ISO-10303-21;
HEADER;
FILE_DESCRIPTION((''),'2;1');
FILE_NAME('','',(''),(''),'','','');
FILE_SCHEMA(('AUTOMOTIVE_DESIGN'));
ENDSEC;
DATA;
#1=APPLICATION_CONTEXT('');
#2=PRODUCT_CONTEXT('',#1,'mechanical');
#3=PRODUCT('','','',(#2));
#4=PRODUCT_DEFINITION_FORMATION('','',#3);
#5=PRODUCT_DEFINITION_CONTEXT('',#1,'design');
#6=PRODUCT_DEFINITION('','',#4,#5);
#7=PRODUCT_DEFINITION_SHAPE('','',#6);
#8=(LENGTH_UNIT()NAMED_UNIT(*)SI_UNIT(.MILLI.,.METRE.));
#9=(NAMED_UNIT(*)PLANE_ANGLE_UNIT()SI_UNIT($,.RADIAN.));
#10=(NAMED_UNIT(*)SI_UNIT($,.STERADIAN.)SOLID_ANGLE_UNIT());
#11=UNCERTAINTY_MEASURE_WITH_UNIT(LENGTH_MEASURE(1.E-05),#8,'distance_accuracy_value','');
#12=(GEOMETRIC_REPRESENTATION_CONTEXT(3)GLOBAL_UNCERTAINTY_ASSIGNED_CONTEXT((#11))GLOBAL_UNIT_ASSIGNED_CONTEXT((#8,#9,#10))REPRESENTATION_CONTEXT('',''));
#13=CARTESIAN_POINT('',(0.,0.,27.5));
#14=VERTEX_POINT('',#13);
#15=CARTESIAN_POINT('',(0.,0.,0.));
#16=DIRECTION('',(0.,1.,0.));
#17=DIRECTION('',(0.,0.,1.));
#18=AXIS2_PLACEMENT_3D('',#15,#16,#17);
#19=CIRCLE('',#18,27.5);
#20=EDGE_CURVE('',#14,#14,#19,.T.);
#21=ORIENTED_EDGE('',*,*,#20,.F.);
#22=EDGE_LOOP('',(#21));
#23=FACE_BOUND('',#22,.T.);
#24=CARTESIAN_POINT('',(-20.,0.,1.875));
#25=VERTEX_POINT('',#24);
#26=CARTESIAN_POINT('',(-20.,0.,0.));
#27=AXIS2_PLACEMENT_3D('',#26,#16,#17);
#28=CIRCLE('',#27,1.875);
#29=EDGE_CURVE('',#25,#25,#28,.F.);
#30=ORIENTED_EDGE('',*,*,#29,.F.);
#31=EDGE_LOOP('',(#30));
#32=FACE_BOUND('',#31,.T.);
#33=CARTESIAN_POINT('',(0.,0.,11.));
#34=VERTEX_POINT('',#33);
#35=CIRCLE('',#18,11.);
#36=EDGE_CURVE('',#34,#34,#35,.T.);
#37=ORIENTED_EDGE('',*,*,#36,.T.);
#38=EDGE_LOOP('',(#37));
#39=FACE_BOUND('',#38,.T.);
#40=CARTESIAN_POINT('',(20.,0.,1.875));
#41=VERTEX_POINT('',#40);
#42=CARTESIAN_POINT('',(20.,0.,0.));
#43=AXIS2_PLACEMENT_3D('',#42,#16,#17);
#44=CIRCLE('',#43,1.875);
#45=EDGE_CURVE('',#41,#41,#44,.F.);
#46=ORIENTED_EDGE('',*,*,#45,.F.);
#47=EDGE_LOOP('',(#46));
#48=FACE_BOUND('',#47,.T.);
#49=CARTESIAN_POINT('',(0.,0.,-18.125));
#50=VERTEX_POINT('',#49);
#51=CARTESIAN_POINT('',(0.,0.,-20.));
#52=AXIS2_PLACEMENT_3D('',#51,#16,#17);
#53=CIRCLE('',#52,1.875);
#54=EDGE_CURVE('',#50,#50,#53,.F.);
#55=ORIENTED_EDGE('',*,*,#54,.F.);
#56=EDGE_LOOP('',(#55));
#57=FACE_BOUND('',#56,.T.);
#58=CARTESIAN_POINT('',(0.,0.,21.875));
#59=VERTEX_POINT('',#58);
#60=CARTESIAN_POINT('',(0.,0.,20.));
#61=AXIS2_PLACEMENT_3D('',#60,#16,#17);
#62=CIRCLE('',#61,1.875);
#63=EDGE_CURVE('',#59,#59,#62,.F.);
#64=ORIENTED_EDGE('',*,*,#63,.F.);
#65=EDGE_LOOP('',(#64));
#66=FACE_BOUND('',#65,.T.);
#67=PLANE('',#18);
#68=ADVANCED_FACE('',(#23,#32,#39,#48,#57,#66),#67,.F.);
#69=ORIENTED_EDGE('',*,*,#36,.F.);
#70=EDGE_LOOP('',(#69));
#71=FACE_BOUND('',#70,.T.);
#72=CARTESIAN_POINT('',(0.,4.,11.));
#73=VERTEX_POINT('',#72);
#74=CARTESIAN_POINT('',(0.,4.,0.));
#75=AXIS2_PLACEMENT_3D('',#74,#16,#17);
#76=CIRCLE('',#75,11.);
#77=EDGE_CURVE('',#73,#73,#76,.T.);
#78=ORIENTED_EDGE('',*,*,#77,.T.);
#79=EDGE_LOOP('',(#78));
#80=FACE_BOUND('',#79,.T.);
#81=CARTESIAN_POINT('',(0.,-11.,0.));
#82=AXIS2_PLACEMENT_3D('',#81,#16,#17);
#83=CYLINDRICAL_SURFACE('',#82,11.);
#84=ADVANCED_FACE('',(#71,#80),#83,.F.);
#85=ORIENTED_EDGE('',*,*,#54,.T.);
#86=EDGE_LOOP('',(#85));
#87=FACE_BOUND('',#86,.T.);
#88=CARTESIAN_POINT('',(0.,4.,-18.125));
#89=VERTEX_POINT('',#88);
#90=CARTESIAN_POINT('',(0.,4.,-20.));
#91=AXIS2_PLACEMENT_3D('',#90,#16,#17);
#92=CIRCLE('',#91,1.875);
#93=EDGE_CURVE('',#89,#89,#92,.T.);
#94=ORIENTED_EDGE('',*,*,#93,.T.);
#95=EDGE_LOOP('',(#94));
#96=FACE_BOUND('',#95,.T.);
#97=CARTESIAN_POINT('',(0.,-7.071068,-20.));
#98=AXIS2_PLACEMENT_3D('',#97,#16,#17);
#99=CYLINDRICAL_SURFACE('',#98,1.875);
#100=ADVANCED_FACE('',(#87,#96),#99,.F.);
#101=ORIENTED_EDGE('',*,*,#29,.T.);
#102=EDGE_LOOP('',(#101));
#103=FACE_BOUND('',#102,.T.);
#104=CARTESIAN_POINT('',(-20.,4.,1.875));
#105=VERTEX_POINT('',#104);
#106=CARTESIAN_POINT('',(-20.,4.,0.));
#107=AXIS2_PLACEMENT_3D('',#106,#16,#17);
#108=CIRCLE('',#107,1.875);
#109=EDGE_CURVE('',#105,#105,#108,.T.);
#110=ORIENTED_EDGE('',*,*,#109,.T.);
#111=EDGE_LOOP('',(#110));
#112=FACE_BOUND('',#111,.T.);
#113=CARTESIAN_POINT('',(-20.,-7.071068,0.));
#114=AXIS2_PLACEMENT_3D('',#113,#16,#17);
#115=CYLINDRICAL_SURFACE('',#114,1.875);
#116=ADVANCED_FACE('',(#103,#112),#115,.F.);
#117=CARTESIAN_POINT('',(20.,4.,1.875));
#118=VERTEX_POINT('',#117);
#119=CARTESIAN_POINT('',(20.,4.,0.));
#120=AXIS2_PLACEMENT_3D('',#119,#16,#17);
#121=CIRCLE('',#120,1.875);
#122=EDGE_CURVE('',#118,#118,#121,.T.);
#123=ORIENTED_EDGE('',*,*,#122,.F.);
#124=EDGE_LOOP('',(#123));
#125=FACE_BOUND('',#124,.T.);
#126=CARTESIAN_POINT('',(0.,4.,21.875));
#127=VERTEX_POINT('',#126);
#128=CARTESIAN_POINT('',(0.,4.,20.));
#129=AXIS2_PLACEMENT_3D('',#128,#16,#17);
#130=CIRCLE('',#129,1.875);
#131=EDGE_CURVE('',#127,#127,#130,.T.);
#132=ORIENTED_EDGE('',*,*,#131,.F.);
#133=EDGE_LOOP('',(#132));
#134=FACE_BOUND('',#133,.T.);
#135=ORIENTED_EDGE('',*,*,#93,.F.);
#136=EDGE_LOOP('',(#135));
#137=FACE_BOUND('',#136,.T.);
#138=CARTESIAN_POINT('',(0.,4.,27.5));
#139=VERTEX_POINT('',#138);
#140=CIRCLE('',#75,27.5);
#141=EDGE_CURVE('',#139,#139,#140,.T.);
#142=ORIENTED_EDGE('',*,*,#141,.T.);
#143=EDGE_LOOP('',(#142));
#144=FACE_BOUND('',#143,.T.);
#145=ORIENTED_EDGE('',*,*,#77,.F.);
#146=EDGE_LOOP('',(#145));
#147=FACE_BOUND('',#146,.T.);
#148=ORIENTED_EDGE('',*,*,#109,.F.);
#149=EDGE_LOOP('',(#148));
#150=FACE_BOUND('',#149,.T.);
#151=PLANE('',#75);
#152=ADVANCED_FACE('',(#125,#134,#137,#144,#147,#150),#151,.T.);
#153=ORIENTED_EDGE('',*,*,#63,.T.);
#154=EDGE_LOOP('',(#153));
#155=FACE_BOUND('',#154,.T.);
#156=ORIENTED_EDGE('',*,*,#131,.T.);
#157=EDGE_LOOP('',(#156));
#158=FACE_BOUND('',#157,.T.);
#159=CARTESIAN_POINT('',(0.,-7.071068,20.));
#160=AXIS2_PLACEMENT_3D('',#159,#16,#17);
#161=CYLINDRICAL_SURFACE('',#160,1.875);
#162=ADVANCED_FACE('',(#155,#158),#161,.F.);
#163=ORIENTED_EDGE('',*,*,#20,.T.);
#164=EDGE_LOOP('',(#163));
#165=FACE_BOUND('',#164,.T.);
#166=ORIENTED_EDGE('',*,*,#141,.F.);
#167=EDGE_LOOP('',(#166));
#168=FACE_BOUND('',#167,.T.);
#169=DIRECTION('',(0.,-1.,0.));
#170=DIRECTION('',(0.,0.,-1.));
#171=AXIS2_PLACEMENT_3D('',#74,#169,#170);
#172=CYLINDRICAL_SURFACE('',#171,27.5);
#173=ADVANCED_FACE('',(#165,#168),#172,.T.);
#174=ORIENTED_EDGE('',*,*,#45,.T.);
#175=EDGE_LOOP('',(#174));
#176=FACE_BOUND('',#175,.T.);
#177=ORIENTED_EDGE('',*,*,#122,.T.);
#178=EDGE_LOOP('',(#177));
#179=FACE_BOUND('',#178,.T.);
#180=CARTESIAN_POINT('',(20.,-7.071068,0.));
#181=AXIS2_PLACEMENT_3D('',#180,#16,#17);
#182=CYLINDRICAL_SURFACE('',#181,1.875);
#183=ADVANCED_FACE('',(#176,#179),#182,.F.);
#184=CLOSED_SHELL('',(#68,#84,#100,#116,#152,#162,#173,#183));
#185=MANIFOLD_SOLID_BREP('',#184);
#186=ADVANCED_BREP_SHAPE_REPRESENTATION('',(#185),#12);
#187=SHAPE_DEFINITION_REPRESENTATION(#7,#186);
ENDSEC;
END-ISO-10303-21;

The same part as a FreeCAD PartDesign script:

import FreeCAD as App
import Part
import Sketcher
from FreeCAD import Vector
Q = App.Units.Quantity

doc = App.newDocument("Part")
body = doc.addObject("PartDesign::Body", "Body")

# Sketch on XZ plane
sketch1 = doc.addObject("Sketcher::SketchObject", "Sketch")
body.addObject(sketch1)
sketch1.AttachmentSupport = (doc.XZ_Plane, [""])
sketch1.MapMode = "FlatFace"
sketch1.addGeometry([
    Part.Circle(Vector(0, 0, 0), Vector(0, 0, 1), 27.5),  # 0
    Part.Circle(Vector(0, -20, 0), Vector(0, 0, 1), 2.5),  # 1
    Part.Circle(Vector(-20, 0, 0), Vector(0, 0, 1), 2.5),  # 2
    Part.Circle(Vector(20, 0, 0), Vector(0, 0, 1), 2.5),  # 3
    Part.Circle(Vector(0, 20, 0), Vector(0, 0, 1), 2.5),  # 4
], False)
sketch1.addConstraint([
    Sketcher.Constraint("Coincident", 0, 3, -1, 1),
    Sketcher.Constraint("Equal", 1, 2),
    Sketcher.Constraint("Equal", 2, 3),
    Sketcher.Constraint("Equal", 3, 4),
    Sketcher.Constraint("Symmetric", 2, 3, 3, 3, -1, 1),
    Sketcher.Constraint("Symmetric", 1, 3, 4, 3, -1, 1),
    Sketcher.Constraint("PointOnObject", 1, 3, -2),
    Sketcher.Constraint("PointOnObject", 2, 3, -1),
    Sketcher.Constraint("Diameter", 0, Q("55 mm")),
    Sketcher.Constraint("Diameter", 1, Q("5 mm")),
    Sketcher.Constraint("DistanceY", 1, 3, -1, 1, Q("20 mm")),
    Sketcher.Constraint("DistanceX", 2, 3, -1, 1, Q("20 mm")),
])
pad1 = doc.addObject("PartDesign::Pad", "Pad")
body.addObject(pad1)
pad1.Profile = sketch1
pad1.Length = 4
pad1.Reversed = True

# Sketch on XZ plane
sketch2 = doc.addObject("Sketcher::SketchObject", "Sketch001")
body.addObject(sketch2)
sketch2.AttachmentSupport = (doc.XZ_Plane, [""])
sketch2.MapMode = "FlatFace"
sketch2.AttachmentOffset = App.Placement(Vector(0, 0, -4), App.Rotation())
sketch2.addGeometry(Part.Circle(Vector(0, 0, 0), Vector(0, 0, 1), 11), False)
sketch2.addConstraint([
    Sketcher.Constraint("Coincident", 0, 3, -1, 1),
    Sketcher.Constraint("Diameter", 0, Q("22 mm")),
])
pocket1 = doc.addObject("PartDesign::Pocket", "Pocket")
body.addObject(pocket1)
pocket1.Profile = sketch2
pocket1.Length = 15
pocket1.Reversed = True

# Sketch on XZ plane
sketch3 = doc.addObject("Sketcher::SketchObject", "Sketch002")
body.addObject(sketch3)
sketch3.AttachmentSupport = (doc.XZ_Plane, [""])
sketch3.MapMode = "FlatFace"
sketch3.addGeometry([
    Part.Circle(Vector(0, 20, 0), Vector(0, 0, 1), 2.5),  # 0
    Part.Circle(Vector(0, 20, 0), Vector(0, 0, 1), 1.9),  # 1
    Part.Circle(Vector(20, 0, 0), Vector(0, 0, 1), 2.5),  # 2
    Part.Circle(Vector(20, 0, 0), Vector(0, 0, 1), 1.9),  # 3
    Part.Circle(Vector(0, -20, 0), Vector(0, 0, 1), 2.5),  # 4
    Part.Circle(Vector(0, -20, 0), Vector(0, 0, 1), 1.9),  # 5
    Part.Circle(Vector(-20, 0, 0), Vector(0, 0, 1), 2.5),  # 6
    Part.Circle(Vector(-20, 0, 0), Vector(0, 0, 1), 1.9),  # 7
], False)
sketch3.addConstraint([
    Sketcher.Constraint("Coincident", 1, 3, 0, 3),
    Sketcher.Constraint("Coincident", 3, 3, 2, 3),
    Sketcher.Constraint("Coincident", 5, 3, 4, 3),
    Sketcher.Constraint("Coincident", 7, 3, 6, 3),
    Sketcher.Constraint("Equal", 0, 2),
    Sketcher.Constraint("Equal", 1, 3),
    Sketcher.Constraint("Equal", 2, 4),
    Sketcher.Constraint("Equal", 3, 5),
    Sketcher.Constraint("Equal", 4, 6),
    Sketcher.Constraint("Equal", 5, 7),
    Sketcher.Constraint("Symmetric", 0, 3, 4, 3, -1, 1),
    Sketcher.Constraint("Symmetric", 2, 3, 6, 3, -1, 1),
    Sketcher.Constraint("PointOnObject", 0, 3, -2),
    Sketcher.Constraint("PointOnObject", 2, 3, -1),
    Sketcher.Constraint("Diameter", 0, Q("5 mm")),
    Sketcher.Constraint("Diameter", 1, Q("3.75 mm")),
    Sketcher.Constraint("DistanceY", -1, 1, 0, 3, Q("20 mm")),
    Sketcher.Constraint("DistanceX", -1, 1, 2, 3, Q("20 mm")),
])
pad2 = doc.addObject("PartDesign::Pad", "Pad001")
body.addObject(pad2)
pad2.Profile = sketch3
pad2.Length = 4
pad2.Reversed = True

doc.recompute()
